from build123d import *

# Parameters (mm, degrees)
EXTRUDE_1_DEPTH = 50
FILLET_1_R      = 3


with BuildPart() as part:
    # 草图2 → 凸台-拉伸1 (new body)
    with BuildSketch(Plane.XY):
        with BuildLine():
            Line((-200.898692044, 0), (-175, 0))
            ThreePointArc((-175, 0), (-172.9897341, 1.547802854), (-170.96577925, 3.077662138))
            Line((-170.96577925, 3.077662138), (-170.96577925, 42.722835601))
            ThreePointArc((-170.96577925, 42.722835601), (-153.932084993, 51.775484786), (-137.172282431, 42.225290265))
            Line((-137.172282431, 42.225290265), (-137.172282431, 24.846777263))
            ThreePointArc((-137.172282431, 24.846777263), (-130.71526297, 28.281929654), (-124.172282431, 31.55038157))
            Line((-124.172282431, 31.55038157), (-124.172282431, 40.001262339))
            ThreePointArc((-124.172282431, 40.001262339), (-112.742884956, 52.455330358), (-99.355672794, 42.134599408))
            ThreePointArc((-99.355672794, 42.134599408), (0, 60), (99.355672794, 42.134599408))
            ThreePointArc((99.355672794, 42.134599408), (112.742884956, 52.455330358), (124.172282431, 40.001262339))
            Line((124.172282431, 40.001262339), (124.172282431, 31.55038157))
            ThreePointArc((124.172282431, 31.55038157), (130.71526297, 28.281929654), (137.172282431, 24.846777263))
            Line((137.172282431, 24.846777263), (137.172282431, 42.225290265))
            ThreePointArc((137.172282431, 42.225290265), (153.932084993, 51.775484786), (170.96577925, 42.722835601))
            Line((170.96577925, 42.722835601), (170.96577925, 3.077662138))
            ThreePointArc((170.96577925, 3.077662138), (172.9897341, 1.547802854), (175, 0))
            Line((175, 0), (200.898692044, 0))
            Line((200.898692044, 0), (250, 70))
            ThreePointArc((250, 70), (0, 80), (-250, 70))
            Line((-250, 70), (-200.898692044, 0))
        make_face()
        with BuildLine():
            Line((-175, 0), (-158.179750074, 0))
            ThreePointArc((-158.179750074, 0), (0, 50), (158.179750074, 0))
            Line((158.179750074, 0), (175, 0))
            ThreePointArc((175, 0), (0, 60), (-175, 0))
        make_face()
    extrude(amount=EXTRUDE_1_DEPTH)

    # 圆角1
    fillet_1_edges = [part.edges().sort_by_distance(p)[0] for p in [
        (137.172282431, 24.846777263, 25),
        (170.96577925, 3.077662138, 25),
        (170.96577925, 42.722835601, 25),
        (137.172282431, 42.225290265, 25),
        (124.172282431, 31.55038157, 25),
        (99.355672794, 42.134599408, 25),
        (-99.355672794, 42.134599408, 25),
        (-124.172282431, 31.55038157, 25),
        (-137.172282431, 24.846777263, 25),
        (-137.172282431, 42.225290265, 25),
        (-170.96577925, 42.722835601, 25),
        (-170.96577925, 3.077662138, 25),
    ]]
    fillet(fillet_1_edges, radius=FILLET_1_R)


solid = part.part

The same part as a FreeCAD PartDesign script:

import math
import FreeCAD as App
import Part
import Sketcher
from FreeCAD import Vector


def edges_at(feature, points):
    """Names of the edges that pass closest to the given points."""
    edges = feature.Shape.Edges
    near = lambda p: min(range(len(edges)), key=lambda i: edges[i].distToShape(Part.Vertex(*p))[0])
    return sorted({f"Edge{near(p) + 1}" for p in points})

doc = App.newDocument("Part")
body = doc.addObject("PartDesign::Body", "Body")

# Sketch on XY plane
sketch1 = body.newObject("Sketcher::SketchObject", "Sketch")
sketch1.AttachmentSupport = (doc.getObject("XY_Plane"), [""])
sketch1.MapMode = "FlatFace"
sketch1.addGeometry(Part.LineSegment(Vector(-201, 0, 0), Vector(-158, 0, 0)), False)
sketch1.addGeometry(Part.ArcOfCircle(Part.Circle(Vector(0, -225, 0), Vector(0, 0, 1), 275), math.radians(55), math.radians(125)), False)
sketch1.addGeometry(Part.LineSegment(Vector(158, 0, 0), Vector(201, 0, 0)), False)
sketch1.addGeometry(Part.LineSegment(Vector(201, 0, 0), Vector(250, 70, 0)), False)
sketch1.addGeometry(Part.ArcOfCircle(Part.Circle(Vector(0, -3050, 0), Vector(0, 0, 1), 3130), math.radians(85.42), math.radians(94.58)), False)
sketch1.addGeometry(Part.LineSegment(Vector(-250, 70, 0), Vector(-201, 0, 0)), False)
sketch1.addGeometry(Part.LineSegment(Vector(-171, 3, 0), Vector(-171, 43, 0)), False)
sketch1.addGeometry(Part.ArcOfCircle(Part.Circle(Vector(-154, 32, 0), Vector(0, 0, 1), 20), math.radians(31), math.radians(147)), False)
sketch1.addGeometry(Part.LineSegment(Vector(-137, 42, 0), Vector(-137, 25, 0)), False)
sketch1.addGeometry(Part.ArcOfCircle(Part.Circle(Vector(0, -225, 0), Vector(0, 0, 1), 285), math.radians(118.75), math.radians(126.83)), False)
sketch1.addGeometry(Part.LineSegment(Vector(-124, 32, 0), Vector(-124, 40, 0)), False)
sketch1.addGeometry(Part.ArcOfCircle(Part.Circle(Vector(-112, 40, 0), Vector(0, 0, 1), 12), math.radians(10), math.radians(180)), False)
sketch1.addGeometry(Part.ArcOfCircle(Part.Circle(Vector(0, -225, 0), Vector(0, 0, 1), 285), math.radians(110.39), math.radians(115.81)), False)
sketch1.addGeometry(Part.ArcOfCircle(Part.Circle(Vector(112, 40, 0), Vector(0, 0, 1), 12), math.radians(0), math.radians(170)), False)
sketch1.addGeometry(Part.LineSegment(Vector(124, 40, 0), Vector(124, 32, 0)), False)
sketch1.addGeometry(Part.ArcOfCircle(Part.Circle(Vector(0, -225, 0), Vector(0, 0, 1), 285), math.radians(64.19), math.radians(69.61)), False)
sketch1.addGeometry(Part.LineSegment(Vector(137, 25, 0), Vector(137, 42, 0)), False)
sketch1.addGeometry(Part.ArcOfCircle(Part.Circle(Vector(154, 32, 0), Vector(0, 0, 1), 20), math.radians(33), math.radians(149)), False)
sketch1.addGeometry(Part.LineSegment(Vector(171, 43, 0), Vector(171, 3, 0)), False)
sketch1.addGeometry(Part.ArcOfCircle(Part.Circle(Vector(0, -225, 0), Vector(0, 0, 1), 285), math.radians(53.17), math.radians(61.25)), False)
sketch1.addConstraint(Sketcher.Constraint("Coincident", 0, 2, 1, 2))
sketch1.addConstraint(Sketcher.Constraint("Coincident", 1, 1, 2, 1))
sketch1.addConstraint(Sketcher.Constraint("Coincident", 2, 2, 3, 1))
sketch1.addConstraint(Sketcher.Constraint("Coincident", 3, 2, 4, 1))
sketch1.addConstraint(Sketcher.Constraint("Coincident", 4, 2, 5, 1))
sketch1.addConstraint(Sketcher.Constraint("Coincident", 5, 2, 0, 1))
sketch1.addConstraint(Sketcher.Constraint("Coincident", 6, 2, 7, 2))
sketch1.addConstraint(Sketcher.Constraint("Coincident", 7, 1, 8, 1))
sketch1.addConstraint(Sketcher.Constraint("Coincident", 8, 2, 9, 1))
sketch1.addConstraint(Sketcher.Constraint("Coincident", 9, 2, 6, 1))
sketch1.addConstraint(Sketcher.Constraint("Tangent", 10, 2, 11, 2))
sketch1.addConstraint(Sketcher.Constraint("Coincident", 11, 1, 12, 1))
sketch1.addConstraint(Sketcher.Constraint("Coincident", 12, 2, 10, 1))
sketch1.addConstraint(Sketcher.Constraint("Tangent", 13, 1, 14, 1))
sketch1.addConstraint(Sketcher.Constraint("Coincident", 14, 2, 15, 1))
sketch1.addConstraint(Sketcher.Constraint("Coincident", 15, 2, 13, 2))
sketch1.addConstraint(Sketcher.Constraint("Coincident", 16, 2, 17, 2))
sketch1.addConstraint(Sketcher.Constraint("Coincident", 17, 1, 18, 1))
sketch1.addConstraint(Sketcher.Constraint("Coincident", 18, 2, 19, 1))
sketch1.addConstraint(Sketcher.Constraint("Coincident", 19, 2, 16, 1))
sketch1.addConstraint(Sketcher.Constraint("Horizontal", 0))
sketch1.addConstraint(Sketcher.Constraint("Horizontal", 2))
sketch1.addConstraint(Sketcher.Constraint("Vertical", 6))
sketch1.addConstraint(Sketcher.Constraint("Vertical", 8))
sketch1.addConstraint(Sketcher.Constraint("Vertical", 10))
sketch1.addConstraint(Sketcher.Constraint("Vertical", 14))
sketch1.addConstraint(Sketcher.Constraint("Vertical", 16))
sketch1.addConstraint(Sketcher.Constraint("Vertical", 18))
sketch1.addConstraint(Sketcher.Constraint("Coincident", 9, 3, 1, 3))
sketch1.addConstraint(Sketcher.Constraint("Coincident", 12, 3, 1, 3))
sketch1.addConstraint(Sketcher.Constraint("Coincident", 15, 3, 1, 3))
sketch1.addConstraint(Sketcher.Constraint("Coincident", 19, 3, 1, 3))
sketch1.addConstraint(Sketcher.Constraint("Equal", 9, 12))
sketch1.addConstraint(Sketcher.Constraint("Equal", 11, 13))
sketch1.addConstraint(Sketcher.Constraint("Equal", 12, 15))
sketch1.addConstraint(Sketcher.Constraint("Equal", 7, 17))
sketch1.addConstraint(Sketcher.Constraint("Equal", 15, 19))
sketch1.addConstraint(Sketcher.Constraint("Symmetric", 0, 2, 1, 1, -1, 1))
sketch1.addConstraint(Sketcher.Constraint("Symmetric", 11, 3, 13, 3, -2))
sketch1.addConstraint(Sketcher.Constraint("Symmetric", 7, 3, 17, 3, -2))
sketch1.addConstraint(Sketcher.Constraint("Symmetric", 2, 2, 5, 2, -2))
sketch1.addConstraint(Sketcher.Constraint("PointOnObject", 4, 3, -2))
sketch1.addConstraint(Sketcher.Constraint("Horizontal", 7, 1, 16, 2))
sketch1.addConstraint(Sketcher.Constraint("Horizontal", 6, 2, 17, 1))
sketch1.addConstraint(Sketcher.Constraint("Equal", 3, 5))
sketch1.addConstraint(Sketcher.Constraint("Radius", 4, 3130.0))
sketch1.addConstraint(Sketcher.Constraint("Radius", 7, 20.0))
sketch1.addConstraint(Sketcher.Constraint("Radius", 11, 12.5))
sketch1.addConstraint(Sketcher.Constraint("DistanceY", 4, 3, -1, 1, 3050.0))
sketch1.addConstraint(Sketcher.Constraint("DistanceX", -1, 1, 3, 2, 250.0))
sketch1.addConstraint(Sketcher.Constraint("DistanceX", 7, 1, 10, 2, 13.0))
sketch1.addConstraint(Sketcher.Constraint("Radius", 1, 275.208333))
sketch1.addConstraint(Sketcher.Constraint("Radius", 9, 285.208333))
sketch1.addConstraint(Sketcher.Constraint("DistanceX", 0, 1, 0, 2, 42.718942))
sketch1.addConstraint(Sketcher.Constraint("DistanceY", 10, 1, 10, 2, 8.450881))
sketch1.addConstraint(Sketcher.Constraint("DistanceY", -1, 1, 11, 1, 42.134599))
sketch1.addConstraint(Sketcher.Constraint("DistanceY", 6, 1, 6, 2, 39.645173))
sketch1.addConstraint(Sketcher.Constraint("DistanceY", 8, 2, 8, 1, 17.378513))
sketch1.addConstraint(Sketcher.Constraint("DistanceX", 0, 2, -1, 1, 158.17975))
sketch1.addConstraint(Sketcher.Constraint("DistanceX", 6, 2, -1, 1, 170.965779))
pad1 = body.newObject("PartDesign::Pad", "Pad")
pad1.Profile = sketch1
pad1.Length = 50
doc.recompute()

fillet = body.newObject("PartDesign::Fillet", "Fillet")
fillet.Base = (pad1, edges_at(pad1, [
    (137.172, 24.847, 25),
    (170.966, 3.078, 25),
    (170.966, 42.723, 25),
    (137.172, 42.225, 25),
    (124.172, 31.55, 25),
    (99.356, 42.135, 25),
    (-99.356, 42.135, 25),
    (-124.172, 31.55, 25),
    (-137.172, 24.847, 25),
    (-137.172, 42.225, 25),
    (-170.966, 42.723, 25),
    (-170.966, 3.078, 25),
]))
fillet.Radius = 3

doc.recompute()
